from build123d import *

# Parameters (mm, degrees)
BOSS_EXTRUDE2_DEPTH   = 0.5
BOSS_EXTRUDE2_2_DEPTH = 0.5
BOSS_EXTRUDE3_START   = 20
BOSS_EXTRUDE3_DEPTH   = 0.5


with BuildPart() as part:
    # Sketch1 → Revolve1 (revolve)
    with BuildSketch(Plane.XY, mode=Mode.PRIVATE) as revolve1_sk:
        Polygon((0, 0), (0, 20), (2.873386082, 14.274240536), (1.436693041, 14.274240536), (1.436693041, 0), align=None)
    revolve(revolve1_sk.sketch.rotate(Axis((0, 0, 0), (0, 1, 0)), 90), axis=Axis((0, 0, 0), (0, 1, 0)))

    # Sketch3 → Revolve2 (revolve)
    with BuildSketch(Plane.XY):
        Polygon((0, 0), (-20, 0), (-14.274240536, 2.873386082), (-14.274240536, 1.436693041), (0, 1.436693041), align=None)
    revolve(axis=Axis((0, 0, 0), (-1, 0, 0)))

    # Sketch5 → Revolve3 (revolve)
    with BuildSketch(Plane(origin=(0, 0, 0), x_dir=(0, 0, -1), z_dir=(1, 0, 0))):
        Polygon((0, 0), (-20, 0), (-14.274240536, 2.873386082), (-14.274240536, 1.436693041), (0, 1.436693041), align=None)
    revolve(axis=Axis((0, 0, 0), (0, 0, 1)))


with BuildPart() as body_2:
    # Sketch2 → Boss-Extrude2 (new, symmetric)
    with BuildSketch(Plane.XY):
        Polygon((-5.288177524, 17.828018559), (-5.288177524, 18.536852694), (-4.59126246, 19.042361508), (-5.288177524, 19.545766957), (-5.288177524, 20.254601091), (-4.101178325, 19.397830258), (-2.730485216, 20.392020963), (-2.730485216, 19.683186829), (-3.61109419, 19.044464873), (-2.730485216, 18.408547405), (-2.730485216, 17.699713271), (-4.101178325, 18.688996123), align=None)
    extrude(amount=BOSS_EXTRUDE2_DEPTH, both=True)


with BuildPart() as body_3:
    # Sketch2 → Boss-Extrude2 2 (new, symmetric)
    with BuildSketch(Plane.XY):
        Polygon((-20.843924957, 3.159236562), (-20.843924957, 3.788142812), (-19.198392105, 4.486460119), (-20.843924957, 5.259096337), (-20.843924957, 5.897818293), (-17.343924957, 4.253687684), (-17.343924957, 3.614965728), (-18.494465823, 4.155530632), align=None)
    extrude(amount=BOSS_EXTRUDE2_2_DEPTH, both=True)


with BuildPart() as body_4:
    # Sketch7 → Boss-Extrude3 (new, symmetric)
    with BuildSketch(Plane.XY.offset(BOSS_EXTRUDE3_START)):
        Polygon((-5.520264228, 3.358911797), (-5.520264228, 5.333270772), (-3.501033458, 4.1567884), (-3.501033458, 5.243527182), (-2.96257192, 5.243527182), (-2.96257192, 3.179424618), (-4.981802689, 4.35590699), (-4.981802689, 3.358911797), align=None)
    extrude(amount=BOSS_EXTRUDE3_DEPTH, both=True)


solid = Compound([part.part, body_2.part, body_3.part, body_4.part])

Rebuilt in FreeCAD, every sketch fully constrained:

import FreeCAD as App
import Part
import Sketcher

V = App.Vector
Q = App.Units.Quantity

doc = App.newDocument("Part")
body = doc.addObject("PartDesign::Body", "Body")

# Sketch on XY plane
sketch1 = doc.addObject("Sketcher::SketchObject", "Sketch")
body.addObject(sketch1)
sketch1.AttachmentSupport = (doc.XY_Plane, [""])
sketch1.MapMode = "FlatFace"
sketch1.addGeometry([
    Part.LineSegment(V(0, 20, 0), V(0, 0, 0)),  # 0
    Part.LineSegment(V(0, 0, 0), V(1.4, 0, 0)),  # 1
    Part.LineSegment(V(1.4, 0, 0), V(1.4, 14.3, 0)),  # 2
    Part.LineSegment(V(1.4, 14.3, 0), V(2.9, 14.3, 0)),  # 3
    Part.LineSegment(V(2.9, 14.3, 0), V(0, 20, 0)),  # 4
], False)
sketch1.addConstraint([
    Sketcher.Constraint("Coincident", 0, 2, 1, 1),
    Sketcher.Constraint("Coincident", 1, 2, 2, 1),
    Sketcher.Constraint("Coincident", 2, 2, 3, 1),
    Sketcher.Constraint("Coincident", 3, 2, 4, 1),
    Sketcher.Constraint("Coincident", 4, 2, 0, 1),
    Sketcher.Constraint("Vertical", 0),
    Sketcher.Constraint("Horizontal", 1),
    Sketcher.Constraint("Vertical", 2),
    Sketcher.Constraint("Horizontal", 3),
    Sketcher.Constraint("Coincident", 0, 2, -1, 1),
    Sketcher.Constraint("Equal", 1, 3),
    Sketcher.Constraint("DistanceY", 0, 2, 0, 1, Q("20 mm")),
    Sketcher.Constraint("Distance", 4, Q("6.406299 mm")),
    Sketcher.Constraint("DistanceY", 2, 1, 2, 2, Q("14.274241 mm")),
])
revolution = doc.addObject("PartDesign::Revolution", "Revolution")
body.addObject(revolution)
revolution.Profile = sketch1
revolution.ReferenceAxis = (sketch1, ["V_Axis"])
revolution.Angle = 360

# Sketch on XY plane
sketch2 = doc.addObject("Sketcher::SketchObject", "Sketch001")
body.addObject(sketch2)
sketch2.AttachmentSupport = (doc.XY_Plane, [""])
sketch2.MapMode = "FlatFace"
sketch2.addGeometry([
    Part.LineSegment(V(-20, 0, 0), V(0, 0, 0)),  # 0
    Part.LineSegment(V(0, 0, 0), V(0, 1.4, 0)),  # 1
    Part.LineSegment(V(0, 1.4, 0), V(-14.3, 1.4, 0)),  # 2
    Part.LineSegment(V(-14.3, 1.4, 0), V(-14.3, 2.9, 0)),  # 3
    Part.LineSegment(V(-14.3, 2.9, 0), V(-20, 0, 0)),  # 4
], False)
sketch2.addConstraint([
    Sketcher.Constraint("Coincident", 0, 2, 1, 1),
    Sketcher.Constraint("Coincident", 1, 2, 2, 1),
    Sketcher.Constraint("Coincident", 2, 2, 3, 1),
    Sketcher.Constraint("Coincident", 3, 2, 4, 1),
    Sketcher.Constraint("Coincident", 4, 2, 0, 1),
    Sketcher.Constraint("Horizontal", 0),
    Sketcher.Constraint("Vertical", 1),
    Sketcher.Constraint("Horizontal", 2),
    Sketcher.Constraint("Vertical", 3),
    Sketcher.Constraint("Coincident", 0, 2, -1, 1),
    Sketcher.Constraint("Equal", 1, 3),
    Sketcher.Constraint("DistanceX", 0, 1, 0, 2, Q("20 mm")),
    Sketcher.Constraint("Distance", 4, Q("6.406299 mm")),
    Sketcher.Constraint("DistanceX", 2, 2, 2, 1, Q("14.274241 mm")),
])
revolution2 = doc.addObject("PartDesign::Revolution", "Revolution001")
body.addObject(revolution2)
revolution2.Profile = sketch2
revolution2.ReferenceAxis = (sketch2, ["H_Axis"])
revolution2.Angle = 360

# Sketch on YZ plane
sketch3 = doc.addObject("Sketcher::SketchObject", "Sketch002")
body.addObject(sketch3)
sketch3.AttachmentSupport = (doc.YZ_Plane, [""])
sketch3.MapMode = "FlatFace"
sketch3.addGeometry([
    Part.LineSegment(V(0, 20, 0), V(0, 0, 0)),  # 0
    Part.LineSegment(V(0, 0, 0), V(1.4, 0, 0)),  # 1
    Part.LineSegment(V(1.4, 0, 0), V(1.4, 14.3, 0)),  # 2
    Part.LineSegment(V(1.4, 14.3, 0), V(2.9, 14.3, 0)),  # 3
    Part.LineSegment(V(2.9, 14.3, 0), V(0, 20, 0)),  # 4
], False)
sketch3.addConstraint([
    Sketcher.Constraint("Coincident", 0, 2, 1, 1),
    Sketcher.Constraint("Coincident", 1, 2, 2, 1),
    Sketcher.Constraint("Coincident", 2, 2, 3, 1),
    Sketcher.Constraint("Coincident", 3, 2, 4, 1),
    Sketcher.Constraint("Coincident", 4, 2, 0, 1),
    Sketcher.Constraint("Vertical", 0),
    Sketcher.Constraint("Horizontal", 1),
    Sketcher.Constraint("Vertical", 2),
    Sketcher.Constraint("Horizontal", 3),
    Sketcher.Constraint("Coincident", 0, 2, -1, 1),
    Sketcher.Constraint("Equal", 1, 3),
    Sketcher.Constraint("DistanceY", 0, 2, 0, 1, Q("20 mm")),
    Sketcher.Constraint("Distance", 4, Q("6.406299 mm")),
    Sketcher.Constraint("DistanceY", 2, 1, 2, 2, Q("14.274241 mm")),
])
revolution3 = doc.addObject("PartDesign::Revolution", "Revolution002")
body.addObject(revolution3)
revolution3.Profile = sketch3
revolution3.ReferenceAxis = (sketch3, ["V_Axis"])
revolution3.Angle = 360
body2 = doc.addObject("PartDesign::Body", "Body001")

# Sketch on XY plane
sketch4 = doc.addObject("Sketcher::SketchObject", "Sketch003")
body2.addObject(sketch4)
sketch4.AttachmentSupport = (doc.getObject("XY_Plane001"), [""])
sketch4.MapMode = "FlatFace"
sketch4.addGeometry([
    Part.LineSegment(V(-5.3, 18.5, 0), V(-5.3, 17.8, 0)),  # 0
    Part.LineSegment(V(-5.3, 17.8, 0), V(-4.1, 18.7, 0)),  # 1
    Part.LineSegment(V(-4.1, 18.7, 0), V(-2.7, 17.7, 0)),  # 2
    Part.LineSegment(V(-2.7, 17.7, 0), V(-2.7, 18.4, 0)),  # 3
    Part.LineSegment(V(-2.7, 18.4, 0), V(-3.6, 19, 0)),  # 4
    Part.LineSegment(V(-3.6, 19, 0), V(-2.7, 19.7, 0)),  # 5
    Part.LineSegment(V(-2.7, 19.7, 0), V(-2.7, 20.4, 0)),  # 6
    Part.LineSegment(V(-2.7, 20.4, 0), V(-4.1, 19.4, 0)),  # 7
    Part.LineSegment(V(-4.1, 19.4, 0), V(-5.3, 20.3, 0)),  # 8
    Part.LineSegment(V(-5.3, 20.3, 0), V(-5.3, 19.5, 0)),  # 9
    Part.LineSegment(V(-5.3, 19.5, 0), V(-4.6, 19, 0)),  # 10
    Part.LineSegment(V(-4.6, 19, 0), V(-5.3, 18.5, 0)),  # 11
], False)
sketch4.addConstraint([
    Sketcher.Constraint("Coincident", 0, 2, 1, 1),
    Sketcher.Constraint("Coincident", 1, 2, 2, 1),
    Sketcher.Constraint("Coincident", 2, 2, 3, 1),
    Sketcher.Constraint("Coincident", 3, 2, 4, 1),
    Sketcher.Constraint("Coincident", 4, 2, 5, 1),
    Sketcher.Constraint("Coincident", 5, 2, 6, 1),
    Sketcher.Constraint("Coincident", 6, 2, 7, 1),
    Sketcher.Constraint("Coincident", 7, 2, 8, 1),
    Sketcher.Constraint("Coincident", 8, 2, 9, 1),
    Sketcher.Constraint("Coincident", 9, 2, 10, 1),
    Sketcher.Constraint("Coincident", 10, 2, 11, 1),
    Sketcher.Constraint("Coincident", 11, 2, 0, 1),
    Sketcher.Constraint("Vertical", 0),
    Sketcher.Constraint("Vertical", 3),
    Sketcher.Constraint("Vertical", 6),
    Sketcher.Constraint("Vertical", 9),
    Sketcher.Constraint("Parallel", 5, 7),
    Sketcher.Constraint("Vertical", 3, 2, 5, 2),
    Sketcher.Constraint("Vertical", 1, 2, 7, 2),
    Sketcher.Constraint("Vertical", 0, 2, 8, 2),
    Sketcher.Constraint("Equal", 0, 3),
    Sketcher.Constraint("Equal", 3, 6),
    Sketcher.Constraint("Equal", 6, 9),
    Sketcher.Constraint("DistanceX", 0, 2, 1, 2, Q("1.186999 mm")),
    Sketcher.Constraint("DistanceY", -1, 1, 8, 2, Q("20.254601 mm")),
    Sketcher.Constraint("Distance", 2, Q("1.690408 mm")),
    Sketcher.Constraint("Distance", 5, Q("1.087859 mm")),
    Sketcher.Constraint("DistanceY", 0, 2, 0, 1, Q("0.708834 mm")),
    Sketcher.Constraint("DistanceY", -1, 1, 0, 2, Q("17.828019 mm")),
    Sketcher.Constraint("DistanceX", 1, 2, -1, 1, Q("4.101178 mm")),
    Sketcher.Constraint("DistanceY", -1, 1, 6, 2, Q("20.392021 mm")),
    Sketcher.Constraint("DistanceY", -1, 1, 7, 2, Q("19.39783 mm")),
    Sketcher.Constraint("DistanceY", -1, 1, 10, 2, Q("19.042362 mm")),
    Sketcher.Constraint("DistanceY", 3, 2, 1, 2, Q("0.280449 mm")),
    Sketcher.Constraint("DistanceY", 0, 2, 3, 2, Q("0.580529 mm")),
    Sketcher.Constraint("DistanceX", 10, 2, 4, 2, Q("0.980168 mm")),
])
pad1 = doc.addObject("PartDesign::Pad", "Pad")
body2.addObject(pad1)
pad1.Profile = sketch4
pad1.Length = 1
pad1.Midplane = True
body3 = doc.addObject("PartDesign::Body", "Body002")

# Sketch on XY plane
sketch5 = doc.addObject("Sketcher::SketchObject", "Sketch004")
body3.addObject(sketch5)
sketch5.AttachmentSupport = (doc.getObject("XY_Plane002"), [""])
sketch5.MapMode = "FlatFace"
sketch5.addGeometry([
    Part.LineSegment(V(-20.8, 3.8, 0), V(-20.8, 3.2, 0)),  # 0
    Part.LineSegment(V(-20.8, 3.2, 0), V(-18.5, 4.2, 0)),  # 1
    Part.LineSegment(V(-18.5, 4.2, 0), V(-17.3, 3.6, 0)),  # 2
    Part.LineSegment(V(-17.3, 3.6, 0), V(-17.3, 4.3, 0)),  # 3
    Part.LineSegment(V(-17.3, 4.3, 0), V(-20.8, 5.9, 0)),  # 4
    Part.LineSegment(V(-20.8, 5.9, 0), V(-20.8, 5.3, 0)),  # 5
    Part.LineSegment(V(-20.8, 5.3, 0), V(-19.2, 4.5, 0)),  # 6
    Part.LineSegment(V(-19.2, 4.5, 0), V(-20.8, 3.8, 0)),  # 7
], False)
sketch5.addConstraint([
    Sketcher.Constraint("Coincident", 0, 2, 1, 1),
    Sketcher.Constraint("Coincident", 1, 2, 2, 1),
    Sketcher.Constraint("Coincident", 2, 2, 3, 1),
    Sketcher.Constraint("Coincident", 3, 2, 4, 1),
    Sketcher.Constraint("Coincident", 4, 2, 5, 1),
    Sketcher.Constraint("Coincident", 5, 2, 6, 1),
    Sketcher.Constraint("Coincident", 6, 2, 7, 1),
    Sketcher.Constraint("Coincident", 7, 2, 0, 1),
    Sketcher.Constraint("Vertical", 0),
    Sketcher.Constraint("Vertical", 3),
    Sketcher.Constraint("Vertical", 5),
    Sketcher.Constraint("Vertical", 0, 2, 4, 2),
    Sketcher.Constraint("Equal", 3, 5),
    Sketcher.Constraint("DistanceX", 0, 2, 2, 2, Q("3.5 mm")),
    Sketcher.Constraint("DistanceY", 3, 1, 3, 2, Q("0.638722 mm")),
    Sketcher.Constraint("Distance", 1, Q("2.551972 mm")),
    Sketcher.Constraint("DistanceY", 0, 2, 0, 1, Q("0.628906 mm")),
    Sketcher.Constraint("DistanceY", -1, 1, 1, 2, Q("4.155531 mm")),
    Sketcher.Constraint("DistanceY", -1, 1, 4, 2, Q("5.897818 mm")),
    Sketcher.Constraint("DistanceY", -1, 1, 6, 2, Q("4.48646 mm")),
    Sketcher.Constraint("DistanceX", 0, 2, 1, 2, Q("2.349459 mm")),
    Sketcher.Constraint("DistanceY", 0, 2, 2, 2, Q("0.455729 mm")),
    Sketcher.Constraint("Distance", 6, Q("1.817896 mm")),
    Sketcher.Constraint("DistanceX", 0, 2, -1, 1, Q("20.843925 mm")),
])
pad2 = doc.addObject("PartDesign::Pad", "Pad001")
body3.addObject(pad2)
pad2.Profile = sketch5
pad2.Length = 1
pad2.Midplane = True
body4 = doc.addObject("PartDesign::Body", "Body003")

# Sketch on XY plane
sketch6 = doc.addObject("Sketcher::SketchObject", "Sketch005")
body4.addObject(sketch6)
sketch6.AttachmentSupport = (doc.getObject("XY_Plane003"), [""])
sketch6.MapMode = "FlatFace"
sketch6.AttachmentOffset = App.Placement(V(0, 0, 20), App.Rotation())
sketch6.addGeometry([
    Part.LineSegment(V(-5.5, 5.3, 0), V(-5.5, 3.4, 0)),  # 0
    Part.LineSegment(V(-5.5, 3.4, 0), V(-5, 3.4, 0)),  # 1
    Part.LineSegment(V(-5, 3.4, 0), V(-5, 4.4, 0)),  # 2
    Part.LineSegment(V(-5, 4.4, 0), V(-3, 3.2, 0)),  # 3
    Part.LineSegment(V(-3, 3.2, 0), V(-3, 5.2, 0)),  # 4
    Part.LineSegment(V(-3, 5.2, 0), V(-3.5, 5.2, 0)),  # 5
    Part.LineSegment(V(-3.5, 5.2, 0), V(-3.5, 4.2, 0)),  # 6
    Part.LineSegment(V(-3.5, 4.2, 0), V(-5.5, 5.3, 0)),  # 7
], False)
sketch6.addConstraint([
    Sketcher.Constraint("Coincident", 0, 2, 1, 1),
    Sketcher.Constraint("Coincident", 1, 2, 2, 1),
    Sketcher.Constraint("Coincident", 2, 2, 3, 1),
    Sketcher.Constraint("Coincident", 3, 2, 4, 1),
    Sketcher.Constraint("Coincident", 4, 2, 5, 1),
    Sketcher.Constraint("Coincident", 5, 2, 6, 1),
    Sketcher.Constraint("Coincident", 6, 2, 7, 1),
    Sketcher.Constraint("Coincident", 7, 2, 0, 1),
    Sketcher.Constraint("Vertical", 0),
    Sketcher.Constraint("Horizontal", 1),
    Sketcher.Constraint("Vertical", 2),
    Sketcher.Constraint("Vertical", 4),
    Sketcher.Constraint("Horizontal", 5),
    Sketcher.Constraint("Vertical", 6),
    Sketcher.Constraint("Parallel", 3, 7),
    Sketcher.Constraint("Equal", 1, 5),
    Sketcher.Constraint("DistanceX", 1, 1, 1, 2, Q("0.538462 mm")),
    Sketcher.Constraint("DistanceY", 0, 2, 0, 1, Q("1.974359 mm")),
    Sketcher.Constraint("DistanceY", 6, 2, 6, 1, Q("1.086739 mm")),
    Sketcher.Constraint("DistanceY", 2, 1, 2, 2, Q("0.996995 mm")),
    Sketcher.Constraint("DistanceY", -1, 1, 0, 2, Q("3.358912 mm")),
    Sketcher.Constraint("DistanceX", 3, 2, -1, 1, Q("2.962572 mm")),
    Sketcher.Constraint("DistanceY", -1, 1, 6, 2, Q("4.156788 mm")),
    Sketcher.Constraint("DistanceX", 1, 2, 3, 2, Q("2.019231 mm")),
])
pad3 = doc.addObject("PartDesign::Pad", "Pad002")
body4.addObject(pad3)
pad3.Profile = sketch6
pad3.Length = 1
pad3.Midplane = True

doc.recompute()
